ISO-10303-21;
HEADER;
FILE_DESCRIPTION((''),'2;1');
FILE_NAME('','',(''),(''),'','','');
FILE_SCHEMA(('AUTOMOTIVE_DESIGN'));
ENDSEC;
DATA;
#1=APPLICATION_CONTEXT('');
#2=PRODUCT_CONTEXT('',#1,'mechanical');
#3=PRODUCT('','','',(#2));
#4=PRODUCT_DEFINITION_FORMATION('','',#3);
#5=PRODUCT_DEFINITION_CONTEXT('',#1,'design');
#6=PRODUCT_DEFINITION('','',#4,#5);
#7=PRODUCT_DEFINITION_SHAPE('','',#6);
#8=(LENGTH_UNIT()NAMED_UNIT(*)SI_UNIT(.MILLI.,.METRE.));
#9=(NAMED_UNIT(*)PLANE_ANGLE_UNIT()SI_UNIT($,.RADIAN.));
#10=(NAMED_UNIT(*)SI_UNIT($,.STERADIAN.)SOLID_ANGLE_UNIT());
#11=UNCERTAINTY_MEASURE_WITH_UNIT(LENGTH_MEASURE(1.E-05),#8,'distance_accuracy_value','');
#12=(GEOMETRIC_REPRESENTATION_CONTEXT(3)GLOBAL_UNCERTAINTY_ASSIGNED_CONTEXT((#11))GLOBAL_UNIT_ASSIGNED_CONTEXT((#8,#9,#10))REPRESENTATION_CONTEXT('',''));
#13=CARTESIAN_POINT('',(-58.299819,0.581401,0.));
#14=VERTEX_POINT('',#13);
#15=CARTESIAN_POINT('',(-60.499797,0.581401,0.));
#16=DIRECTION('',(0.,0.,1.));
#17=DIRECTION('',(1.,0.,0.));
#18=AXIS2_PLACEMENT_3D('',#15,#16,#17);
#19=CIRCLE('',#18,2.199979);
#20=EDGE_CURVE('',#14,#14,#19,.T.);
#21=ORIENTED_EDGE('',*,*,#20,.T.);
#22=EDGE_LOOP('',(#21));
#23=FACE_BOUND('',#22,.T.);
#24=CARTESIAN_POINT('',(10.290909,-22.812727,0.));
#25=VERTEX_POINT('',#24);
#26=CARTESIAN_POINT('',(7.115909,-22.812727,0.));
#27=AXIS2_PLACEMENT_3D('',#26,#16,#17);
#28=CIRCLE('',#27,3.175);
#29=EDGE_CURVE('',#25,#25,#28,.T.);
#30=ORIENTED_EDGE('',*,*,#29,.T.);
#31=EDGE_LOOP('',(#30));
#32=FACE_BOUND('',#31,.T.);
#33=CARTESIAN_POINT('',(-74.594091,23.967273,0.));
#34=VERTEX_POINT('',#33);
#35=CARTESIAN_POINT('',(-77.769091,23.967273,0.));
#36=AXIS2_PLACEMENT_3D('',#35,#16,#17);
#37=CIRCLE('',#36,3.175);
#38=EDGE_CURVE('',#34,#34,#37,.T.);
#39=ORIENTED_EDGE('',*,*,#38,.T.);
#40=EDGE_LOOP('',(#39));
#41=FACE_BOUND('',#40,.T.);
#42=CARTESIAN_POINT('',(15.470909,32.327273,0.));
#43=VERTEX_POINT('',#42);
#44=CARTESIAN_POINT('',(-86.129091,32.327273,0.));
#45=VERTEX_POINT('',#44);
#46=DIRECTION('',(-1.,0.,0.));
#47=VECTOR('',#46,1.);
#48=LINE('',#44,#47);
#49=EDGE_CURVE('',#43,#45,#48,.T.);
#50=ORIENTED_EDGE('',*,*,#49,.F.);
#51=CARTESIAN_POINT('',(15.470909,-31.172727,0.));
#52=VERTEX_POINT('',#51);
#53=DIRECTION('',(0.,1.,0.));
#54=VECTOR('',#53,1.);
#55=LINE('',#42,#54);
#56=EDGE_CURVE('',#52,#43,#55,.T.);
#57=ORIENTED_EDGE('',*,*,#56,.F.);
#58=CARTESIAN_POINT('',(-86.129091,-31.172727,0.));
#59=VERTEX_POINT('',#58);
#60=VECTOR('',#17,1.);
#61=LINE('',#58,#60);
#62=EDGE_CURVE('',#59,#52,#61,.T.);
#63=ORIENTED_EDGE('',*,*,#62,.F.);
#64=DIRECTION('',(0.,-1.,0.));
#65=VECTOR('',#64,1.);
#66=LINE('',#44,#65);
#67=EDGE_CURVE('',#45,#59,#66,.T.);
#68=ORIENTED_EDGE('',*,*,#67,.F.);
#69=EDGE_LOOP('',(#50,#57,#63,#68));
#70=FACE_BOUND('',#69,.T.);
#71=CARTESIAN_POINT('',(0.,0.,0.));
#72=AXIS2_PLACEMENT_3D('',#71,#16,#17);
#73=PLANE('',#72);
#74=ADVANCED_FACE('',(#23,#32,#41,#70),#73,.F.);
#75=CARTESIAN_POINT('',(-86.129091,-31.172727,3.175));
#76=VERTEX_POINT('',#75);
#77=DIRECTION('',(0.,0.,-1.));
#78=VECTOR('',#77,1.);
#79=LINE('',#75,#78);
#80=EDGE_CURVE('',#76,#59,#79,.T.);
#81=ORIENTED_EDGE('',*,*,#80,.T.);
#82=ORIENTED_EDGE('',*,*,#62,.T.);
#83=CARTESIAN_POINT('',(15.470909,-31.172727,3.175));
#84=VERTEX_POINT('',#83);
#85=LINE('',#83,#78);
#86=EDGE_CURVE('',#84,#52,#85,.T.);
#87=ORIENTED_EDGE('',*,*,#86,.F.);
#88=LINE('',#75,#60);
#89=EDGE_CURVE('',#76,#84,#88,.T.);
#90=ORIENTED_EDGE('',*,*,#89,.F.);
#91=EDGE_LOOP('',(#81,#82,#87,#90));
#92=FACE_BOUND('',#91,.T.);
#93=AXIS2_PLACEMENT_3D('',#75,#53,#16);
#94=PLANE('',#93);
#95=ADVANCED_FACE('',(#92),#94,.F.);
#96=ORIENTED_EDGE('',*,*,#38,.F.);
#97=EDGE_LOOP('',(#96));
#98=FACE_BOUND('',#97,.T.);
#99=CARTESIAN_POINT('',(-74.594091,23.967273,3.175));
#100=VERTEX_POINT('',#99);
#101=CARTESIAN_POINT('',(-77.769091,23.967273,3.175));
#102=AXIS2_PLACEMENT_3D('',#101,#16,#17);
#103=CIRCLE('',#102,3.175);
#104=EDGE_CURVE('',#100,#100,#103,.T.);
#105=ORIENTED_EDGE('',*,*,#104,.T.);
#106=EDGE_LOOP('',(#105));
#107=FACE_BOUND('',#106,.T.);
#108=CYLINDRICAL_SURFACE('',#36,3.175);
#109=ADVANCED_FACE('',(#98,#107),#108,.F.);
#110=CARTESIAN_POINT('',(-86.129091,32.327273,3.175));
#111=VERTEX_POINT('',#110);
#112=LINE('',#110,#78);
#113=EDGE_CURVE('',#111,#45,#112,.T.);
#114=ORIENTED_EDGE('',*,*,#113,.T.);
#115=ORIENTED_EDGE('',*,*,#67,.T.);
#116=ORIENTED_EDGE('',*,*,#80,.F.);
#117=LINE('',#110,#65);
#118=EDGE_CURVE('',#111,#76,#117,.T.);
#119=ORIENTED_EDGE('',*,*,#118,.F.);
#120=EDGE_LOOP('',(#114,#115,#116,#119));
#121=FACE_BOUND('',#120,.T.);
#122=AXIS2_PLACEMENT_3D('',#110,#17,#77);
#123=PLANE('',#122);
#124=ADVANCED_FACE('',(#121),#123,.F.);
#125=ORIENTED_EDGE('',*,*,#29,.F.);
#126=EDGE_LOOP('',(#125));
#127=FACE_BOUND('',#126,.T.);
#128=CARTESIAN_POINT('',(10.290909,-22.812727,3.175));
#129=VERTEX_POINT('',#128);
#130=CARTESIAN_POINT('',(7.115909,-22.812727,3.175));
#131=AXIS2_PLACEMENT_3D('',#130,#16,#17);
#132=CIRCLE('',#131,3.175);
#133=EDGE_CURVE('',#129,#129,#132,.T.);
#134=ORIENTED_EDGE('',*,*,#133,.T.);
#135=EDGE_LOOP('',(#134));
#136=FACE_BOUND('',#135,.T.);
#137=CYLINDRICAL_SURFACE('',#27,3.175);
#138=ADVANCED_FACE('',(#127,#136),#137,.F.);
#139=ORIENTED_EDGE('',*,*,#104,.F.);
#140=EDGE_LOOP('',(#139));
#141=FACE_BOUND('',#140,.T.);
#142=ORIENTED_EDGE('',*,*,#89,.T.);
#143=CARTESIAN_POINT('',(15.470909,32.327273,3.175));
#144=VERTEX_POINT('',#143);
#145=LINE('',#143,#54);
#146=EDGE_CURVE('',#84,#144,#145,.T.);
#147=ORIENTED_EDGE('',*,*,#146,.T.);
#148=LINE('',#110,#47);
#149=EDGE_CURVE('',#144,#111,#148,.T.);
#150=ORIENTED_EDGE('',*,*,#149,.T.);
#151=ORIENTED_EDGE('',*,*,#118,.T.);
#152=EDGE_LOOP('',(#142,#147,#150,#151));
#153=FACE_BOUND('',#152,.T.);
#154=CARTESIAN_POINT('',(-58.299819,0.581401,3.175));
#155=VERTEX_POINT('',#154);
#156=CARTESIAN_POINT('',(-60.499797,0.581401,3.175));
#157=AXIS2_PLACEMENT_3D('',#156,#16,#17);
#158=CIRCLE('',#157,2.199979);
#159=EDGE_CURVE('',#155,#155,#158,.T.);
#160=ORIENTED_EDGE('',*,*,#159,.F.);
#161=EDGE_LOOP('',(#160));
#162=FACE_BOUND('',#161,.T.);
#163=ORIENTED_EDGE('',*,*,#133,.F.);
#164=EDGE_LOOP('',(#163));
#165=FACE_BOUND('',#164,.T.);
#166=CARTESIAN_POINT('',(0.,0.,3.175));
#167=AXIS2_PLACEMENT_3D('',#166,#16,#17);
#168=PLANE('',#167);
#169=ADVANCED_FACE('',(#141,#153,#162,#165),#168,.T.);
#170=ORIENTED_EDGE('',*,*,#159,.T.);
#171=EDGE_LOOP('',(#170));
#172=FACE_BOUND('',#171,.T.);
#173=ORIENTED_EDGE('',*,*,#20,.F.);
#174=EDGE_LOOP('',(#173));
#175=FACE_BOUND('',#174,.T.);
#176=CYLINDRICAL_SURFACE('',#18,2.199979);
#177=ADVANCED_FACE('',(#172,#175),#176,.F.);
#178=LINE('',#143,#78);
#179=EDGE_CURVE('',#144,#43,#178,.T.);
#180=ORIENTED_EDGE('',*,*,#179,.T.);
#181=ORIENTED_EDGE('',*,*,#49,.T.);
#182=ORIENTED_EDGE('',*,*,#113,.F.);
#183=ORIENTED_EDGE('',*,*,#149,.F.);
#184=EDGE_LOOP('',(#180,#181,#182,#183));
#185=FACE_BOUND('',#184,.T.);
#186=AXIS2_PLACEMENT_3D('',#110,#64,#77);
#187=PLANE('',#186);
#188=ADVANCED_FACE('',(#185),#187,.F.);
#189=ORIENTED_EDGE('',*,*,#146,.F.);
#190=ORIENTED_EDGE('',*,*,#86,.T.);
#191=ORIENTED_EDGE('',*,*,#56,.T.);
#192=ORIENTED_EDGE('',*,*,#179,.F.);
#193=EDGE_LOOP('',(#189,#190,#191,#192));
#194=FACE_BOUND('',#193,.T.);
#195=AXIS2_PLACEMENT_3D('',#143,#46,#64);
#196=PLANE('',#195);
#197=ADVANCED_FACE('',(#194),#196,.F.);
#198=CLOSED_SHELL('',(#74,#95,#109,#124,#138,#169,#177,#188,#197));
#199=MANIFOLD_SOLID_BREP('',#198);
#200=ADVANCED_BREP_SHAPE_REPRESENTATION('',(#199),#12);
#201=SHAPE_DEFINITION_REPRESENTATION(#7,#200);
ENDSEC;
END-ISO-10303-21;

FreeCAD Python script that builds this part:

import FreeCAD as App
import Part
import Sketcher
Q = App.Units.Quantity


def add_polygon(sketch, points):
    """Adds a closed chain of lines whose ends are joined by coincident constraints."""
    first, n = sketch.GeometryCount, len(points)
    for a, b in zip(points, points[1:] + points[:1]):
        sketch.addGeometry(Part.LineSegment(App.Vector(*a, 0), App.Vector(*b, 0)), False)
    for i in range(n):
        sketch.addConstraint(Sketcher.Constraint("Coincident", first + i, 2, first + (i + 1) % n, 1))

doc = App.newDocument("Part")
body = doc.addObject("PartDesign::Body", "Body")

# Sketch on XY plane
sketch1 = body.newObject("Sketcher::SketchObject", "Sketch")
sketch1.AttachmentSupport = (doc.getObject("XY_Plane"), [""])
sketch1.MapMode = "FlatFace"
add_polygon(sketch1, [(-86, 32), (-86, -31), (15, -31), (15, 32)])  # lines 0-3
sketch1.addConstraint(Sketcher.Constraint("Vertical", 0))
sketch1.addConstraint(Sketcher.Constraint("Horizontal", 1))
sketch1.addConstraint(Sketcher.Constraint("Vertical", 2))
sketch1.addConstraint(Sketcher.Constraint("Horizontal", 3))
sketch1.addConstraint(Sketcher.Constraint("DistanceX", 1, 1, 1, 2, Q("4 in")))
sketch1.addConstraint(Sketcher.Constraint("DistanceY", 0, 2, 0, 1, Q("2.5 in")))
sketch1.addConstraint(Sketcher.Constraint("DistanceX", 0, 2, -1, 1, Q("86.129091 mm")))
sketch1.addConstraint(Sketcher.Constraint("DistanceY", 0, 2, -1, 1, Q("31.172727 mm")))
pad1 = body.newObject("PartDesign::Pad", "Pad")
pad1.Profile = sketch1
pad1.Length = Q("0.125 in")

# Sketch on XY plane
sketch2 = body.newObject("Sketcher::SketchObject", "Sketch001")
sketch2.AttachmentSupport = (doc.getObject("XY_Plane"), [""])
sketch2.MapMode = "FlatFace"
sketch2.AttachmentOffset = App.Placement(App.Vector(0, 0, 0.125 * 25.4), App.Rotation())
sketch2.addGeometry(Part.Circle(App.Vector(-77.8, 24, 0), App.Vector(0, 0, 1), 3.2), False)
sketch2.addGeometry(Part.Circle(App.Vector(7.1, -22.8, 0), App.Vector(0, 0, 1), 3.2), False)
sketch2.addConstraint(Sketcher.Constraint("Equal", 0, 1))
sketch2.addConstraint(Sketcher.Constraint("Diameter", 0, Q("0.25 in")))
sketch2.addConstraint(Sketcher.Constraint("DistanceX", 0, 3, 1, 3, Q("84.885 mm")))
sketch2.addConstraint(Sketcher.Constraint("DistanceY", 1, 3, 0, 3, Q("46.78 mm")))
sketch2.addConstraint(Sketcher.Constraint("DistanceX", 0, 3, -1, 1, Q("77.769091 mm")))
sketch2.addConstraint(Sketcher.Constraint("DistanceY", -1, 1, 0, 3, Q("23.967273 mm")))
pocket1 = body.newObject("PartDesign::Pocket", "Pocket")
pocket1.Profile = sketch2
pocket1.Length = Q("0.125 in")

# Sketch on XY plane
sketch3 = body.newObject("Sketcher::SketchObject", "Sketch002")
sketch3.AttachmentSupport = (doc.getObject("XY_Plane"), [""])
sketch3.MapMode = "FlatFace"
sketch3.AttachmentOffset = App.Placement(App.Vector(0, 0, 0.125 * 25.4), App.Rotation())
sketch3.addGeometry(Part.Circle(App.Vector(-60.5, 0.6, 0), App.Vector(0, 0, 1), 2.2), False)
sketch3.addConstraint(Sketcher.Constraint("Diameter", 0, Q("4.399957 mm")))
sketch3.addConstraint(Sketcher.Constraint("DistanceY", -1, 1, 0, 3, Q("0.581401 mm")))
sketch3.addConstraint(Sketcher.Constraint("DistanceX", 0, 3, -1, 1, Q("60.499797 mm")))
pocket2 = body.newObject("PartDesign::Pocket", "Pocket001")
pocket2.Profile = sketch3
pocket2.Length = Q("0.125 in")

doc.recompute()
